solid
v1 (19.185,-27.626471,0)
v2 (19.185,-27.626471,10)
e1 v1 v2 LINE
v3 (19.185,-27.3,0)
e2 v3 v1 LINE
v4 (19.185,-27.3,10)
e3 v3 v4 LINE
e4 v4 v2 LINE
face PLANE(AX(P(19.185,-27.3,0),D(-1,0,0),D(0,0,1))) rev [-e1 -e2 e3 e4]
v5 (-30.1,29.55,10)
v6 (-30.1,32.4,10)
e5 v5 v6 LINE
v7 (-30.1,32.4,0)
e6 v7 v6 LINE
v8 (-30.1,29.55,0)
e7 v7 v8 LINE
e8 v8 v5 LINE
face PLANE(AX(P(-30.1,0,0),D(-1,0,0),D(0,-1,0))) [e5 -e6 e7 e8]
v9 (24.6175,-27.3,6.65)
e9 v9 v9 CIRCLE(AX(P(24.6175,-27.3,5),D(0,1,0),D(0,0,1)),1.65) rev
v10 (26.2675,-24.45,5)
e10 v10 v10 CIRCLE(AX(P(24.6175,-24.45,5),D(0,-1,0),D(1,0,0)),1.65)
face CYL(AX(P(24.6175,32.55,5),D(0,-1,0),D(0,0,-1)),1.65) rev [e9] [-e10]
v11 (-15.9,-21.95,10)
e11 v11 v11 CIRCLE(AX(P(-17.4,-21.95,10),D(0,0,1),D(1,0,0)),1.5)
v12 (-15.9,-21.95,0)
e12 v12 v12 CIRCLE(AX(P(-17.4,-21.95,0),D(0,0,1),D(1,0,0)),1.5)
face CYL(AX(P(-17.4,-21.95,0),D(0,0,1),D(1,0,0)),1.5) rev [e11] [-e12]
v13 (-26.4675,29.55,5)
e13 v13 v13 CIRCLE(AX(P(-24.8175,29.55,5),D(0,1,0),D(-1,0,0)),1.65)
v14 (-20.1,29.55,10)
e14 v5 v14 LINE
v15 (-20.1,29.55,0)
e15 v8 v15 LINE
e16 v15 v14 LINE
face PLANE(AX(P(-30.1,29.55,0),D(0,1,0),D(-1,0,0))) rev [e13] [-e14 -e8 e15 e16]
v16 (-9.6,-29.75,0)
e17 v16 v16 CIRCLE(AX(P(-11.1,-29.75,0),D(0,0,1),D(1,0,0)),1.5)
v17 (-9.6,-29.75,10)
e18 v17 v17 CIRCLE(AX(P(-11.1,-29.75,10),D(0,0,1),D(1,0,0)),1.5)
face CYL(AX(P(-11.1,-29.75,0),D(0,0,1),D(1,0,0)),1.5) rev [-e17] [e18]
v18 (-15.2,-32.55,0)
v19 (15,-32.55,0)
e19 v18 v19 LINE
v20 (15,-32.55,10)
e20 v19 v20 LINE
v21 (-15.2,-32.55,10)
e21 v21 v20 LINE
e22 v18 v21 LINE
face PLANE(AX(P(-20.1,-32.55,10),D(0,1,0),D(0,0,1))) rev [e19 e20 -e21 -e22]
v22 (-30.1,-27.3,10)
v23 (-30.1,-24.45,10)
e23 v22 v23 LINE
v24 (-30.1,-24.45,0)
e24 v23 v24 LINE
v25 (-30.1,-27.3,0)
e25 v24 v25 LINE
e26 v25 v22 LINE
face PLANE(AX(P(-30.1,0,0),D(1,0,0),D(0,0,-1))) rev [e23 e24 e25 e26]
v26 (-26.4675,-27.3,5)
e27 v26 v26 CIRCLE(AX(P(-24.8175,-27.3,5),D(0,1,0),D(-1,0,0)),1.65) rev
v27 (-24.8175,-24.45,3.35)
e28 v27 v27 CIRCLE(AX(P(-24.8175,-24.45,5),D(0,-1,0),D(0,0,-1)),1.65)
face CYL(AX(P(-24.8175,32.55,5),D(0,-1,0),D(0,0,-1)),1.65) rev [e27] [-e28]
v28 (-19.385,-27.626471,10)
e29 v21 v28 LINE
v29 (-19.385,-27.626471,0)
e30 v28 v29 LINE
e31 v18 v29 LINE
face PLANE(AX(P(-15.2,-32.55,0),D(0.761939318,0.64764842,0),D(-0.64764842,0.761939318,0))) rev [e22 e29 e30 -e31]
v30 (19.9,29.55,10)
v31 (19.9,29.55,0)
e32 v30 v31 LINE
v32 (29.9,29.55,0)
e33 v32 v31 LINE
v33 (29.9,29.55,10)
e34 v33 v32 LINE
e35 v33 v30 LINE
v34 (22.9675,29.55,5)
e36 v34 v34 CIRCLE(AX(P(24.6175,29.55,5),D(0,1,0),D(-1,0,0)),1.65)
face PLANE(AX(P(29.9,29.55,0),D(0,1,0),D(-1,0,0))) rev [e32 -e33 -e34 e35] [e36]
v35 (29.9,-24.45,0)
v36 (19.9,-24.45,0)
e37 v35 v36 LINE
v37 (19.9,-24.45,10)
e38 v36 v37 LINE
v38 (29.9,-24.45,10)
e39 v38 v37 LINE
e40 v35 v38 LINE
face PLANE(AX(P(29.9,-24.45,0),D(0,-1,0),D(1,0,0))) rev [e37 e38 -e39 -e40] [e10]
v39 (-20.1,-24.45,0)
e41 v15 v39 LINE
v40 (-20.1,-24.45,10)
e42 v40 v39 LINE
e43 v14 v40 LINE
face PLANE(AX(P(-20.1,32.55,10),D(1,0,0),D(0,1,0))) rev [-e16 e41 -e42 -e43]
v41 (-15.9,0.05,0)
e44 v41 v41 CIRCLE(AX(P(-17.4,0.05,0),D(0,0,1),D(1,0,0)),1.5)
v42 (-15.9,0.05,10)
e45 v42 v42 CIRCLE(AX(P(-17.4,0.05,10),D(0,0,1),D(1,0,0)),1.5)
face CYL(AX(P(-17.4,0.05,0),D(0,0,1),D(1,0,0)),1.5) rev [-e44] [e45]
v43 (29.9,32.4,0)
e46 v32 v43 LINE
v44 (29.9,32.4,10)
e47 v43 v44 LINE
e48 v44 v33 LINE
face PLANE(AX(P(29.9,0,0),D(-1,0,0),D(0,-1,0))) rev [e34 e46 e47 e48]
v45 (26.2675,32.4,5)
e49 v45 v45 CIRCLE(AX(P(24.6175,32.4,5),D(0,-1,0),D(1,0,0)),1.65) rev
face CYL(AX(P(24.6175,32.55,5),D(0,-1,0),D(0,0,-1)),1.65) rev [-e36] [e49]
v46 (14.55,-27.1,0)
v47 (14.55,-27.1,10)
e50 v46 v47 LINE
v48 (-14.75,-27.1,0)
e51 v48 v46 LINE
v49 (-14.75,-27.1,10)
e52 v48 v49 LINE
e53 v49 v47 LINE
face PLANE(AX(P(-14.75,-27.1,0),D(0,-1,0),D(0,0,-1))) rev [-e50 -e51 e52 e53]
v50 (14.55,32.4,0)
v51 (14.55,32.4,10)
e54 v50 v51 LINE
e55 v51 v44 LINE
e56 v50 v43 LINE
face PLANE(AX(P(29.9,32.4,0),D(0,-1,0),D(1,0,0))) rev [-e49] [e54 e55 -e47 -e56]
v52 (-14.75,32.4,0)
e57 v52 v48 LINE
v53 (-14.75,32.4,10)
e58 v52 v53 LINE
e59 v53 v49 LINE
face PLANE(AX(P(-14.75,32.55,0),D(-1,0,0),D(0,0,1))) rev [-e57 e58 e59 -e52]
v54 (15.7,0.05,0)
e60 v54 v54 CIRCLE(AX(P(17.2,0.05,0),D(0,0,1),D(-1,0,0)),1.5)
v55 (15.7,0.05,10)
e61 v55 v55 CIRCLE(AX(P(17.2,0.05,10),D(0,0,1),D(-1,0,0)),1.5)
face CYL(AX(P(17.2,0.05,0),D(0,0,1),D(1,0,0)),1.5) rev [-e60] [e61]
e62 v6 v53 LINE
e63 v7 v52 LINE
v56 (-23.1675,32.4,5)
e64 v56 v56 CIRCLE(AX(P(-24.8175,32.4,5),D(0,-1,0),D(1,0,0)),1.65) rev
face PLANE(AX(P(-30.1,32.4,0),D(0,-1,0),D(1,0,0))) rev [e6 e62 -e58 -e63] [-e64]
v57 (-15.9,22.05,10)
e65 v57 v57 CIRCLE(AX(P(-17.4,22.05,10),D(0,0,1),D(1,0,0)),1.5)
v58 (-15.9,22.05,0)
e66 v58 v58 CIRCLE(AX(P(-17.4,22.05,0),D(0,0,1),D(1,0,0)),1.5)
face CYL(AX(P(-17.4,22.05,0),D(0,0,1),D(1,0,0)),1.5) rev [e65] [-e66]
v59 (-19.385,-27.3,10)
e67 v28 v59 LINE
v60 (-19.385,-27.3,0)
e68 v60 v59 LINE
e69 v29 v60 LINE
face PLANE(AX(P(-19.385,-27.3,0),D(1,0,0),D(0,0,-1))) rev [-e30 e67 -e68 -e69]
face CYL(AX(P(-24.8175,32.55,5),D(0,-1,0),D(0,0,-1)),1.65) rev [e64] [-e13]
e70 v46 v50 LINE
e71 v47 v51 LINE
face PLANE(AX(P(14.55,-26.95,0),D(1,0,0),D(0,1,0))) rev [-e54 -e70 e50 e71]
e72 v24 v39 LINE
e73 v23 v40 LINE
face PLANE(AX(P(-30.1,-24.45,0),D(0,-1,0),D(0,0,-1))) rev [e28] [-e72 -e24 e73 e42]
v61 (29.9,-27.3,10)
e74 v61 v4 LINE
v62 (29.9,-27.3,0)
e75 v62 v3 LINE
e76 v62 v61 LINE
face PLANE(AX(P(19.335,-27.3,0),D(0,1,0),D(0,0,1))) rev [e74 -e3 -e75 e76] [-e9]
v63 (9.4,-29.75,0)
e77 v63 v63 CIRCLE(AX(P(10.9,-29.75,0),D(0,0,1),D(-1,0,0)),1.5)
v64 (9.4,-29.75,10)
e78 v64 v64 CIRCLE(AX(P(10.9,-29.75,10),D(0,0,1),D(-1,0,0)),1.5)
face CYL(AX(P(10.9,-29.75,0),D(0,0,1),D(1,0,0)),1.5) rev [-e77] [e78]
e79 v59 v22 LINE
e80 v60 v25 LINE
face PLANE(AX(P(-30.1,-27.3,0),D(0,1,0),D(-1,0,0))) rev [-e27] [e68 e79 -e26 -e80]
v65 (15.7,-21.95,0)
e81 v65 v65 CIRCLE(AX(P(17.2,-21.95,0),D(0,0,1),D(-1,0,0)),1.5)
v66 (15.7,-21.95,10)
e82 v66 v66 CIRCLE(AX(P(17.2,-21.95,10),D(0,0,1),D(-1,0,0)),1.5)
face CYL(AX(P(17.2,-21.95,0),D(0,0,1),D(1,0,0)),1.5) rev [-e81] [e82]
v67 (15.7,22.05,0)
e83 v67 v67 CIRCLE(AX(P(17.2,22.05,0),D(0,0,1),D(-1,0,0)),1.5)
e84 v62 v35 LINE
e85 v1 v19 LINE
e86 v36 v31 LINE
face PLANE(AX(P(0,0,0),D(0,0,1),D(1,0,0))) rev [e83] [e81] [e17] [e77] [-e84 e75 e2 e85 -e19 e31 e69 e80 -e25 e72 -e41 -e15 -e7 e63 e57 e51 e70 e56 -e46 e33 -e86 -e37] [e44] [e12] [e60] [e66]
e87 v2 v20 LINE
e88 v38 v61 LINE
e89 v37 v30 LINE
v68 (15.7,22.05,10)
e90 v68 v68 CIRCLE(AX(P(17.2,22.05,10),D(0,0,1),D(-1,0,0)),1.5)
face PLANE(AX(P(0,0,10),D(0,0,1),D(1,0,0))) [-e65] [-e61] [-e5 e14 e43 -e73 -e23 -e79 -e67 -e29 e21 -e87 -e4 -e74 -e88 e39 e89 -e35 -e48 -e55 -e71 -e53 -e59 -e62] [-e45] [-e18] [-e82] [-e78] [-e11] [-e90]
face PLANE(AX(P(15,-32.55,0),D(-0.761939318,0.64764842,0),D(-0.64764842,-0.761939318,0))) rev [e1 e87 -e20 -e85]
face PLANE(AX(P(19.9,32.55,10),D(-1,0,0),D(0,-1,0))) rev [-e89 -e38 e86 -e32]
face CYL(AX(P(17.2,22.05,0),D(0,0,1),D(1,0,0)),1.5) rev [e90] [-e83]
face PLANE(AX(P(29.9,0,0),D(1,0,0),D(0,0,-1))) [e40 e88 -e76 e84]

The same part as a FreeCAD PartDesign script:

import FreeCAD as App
import Part
import Sketcher

V = App.Vector
Q = App.Units.Quantity

doc = App.newDocument("Part")
body = doc.addObject("PartDesign::Body", "Body")

# Sketch on XY plane
sketch1 = body.newObject("Sketcher::SketchObject", "Sketch")
sketch1.AttachmentSupport = (doc.getObject("XY_Plane"), [""])
sketch1.MapMode = "FlatFace"
sketch1.addGeometry(Part.LineSegment(V(-20.1, 32.55, 0), V(-20.1, -32.55, 0)), False)
sketch1.addGeometry(Part.LineSegment(V(-20.1, -32.55, 0), V(19.9, -32.55, 0)), False)
sketch1.addGeometry(Part.LineSegment(V(19.9, -32.55, 0), V(19.9, 32.55, 0)), False)
sketch1.addGeometry(Part.LineSegment(V(19.9, 32.55, 0), V(-20.1, 32.55, 0)), False)
sketch1.addConstraint(Sketcher.Constraint("Coincident", 0, 2, 1, 1))
sketch1.addConstraint(Sketcher.Constraint("Coincident", 1, 2, 2, 1))
sketch1.addConstraint(Sketcher.Constraint("Coincident", 2, 2, 3, 1))
sketch1.addConstraint(Sketcher.Constraint("Coincident", 3, 2, 0, 1))
sketch1.addConstraint(Sketcher.Constraint("Vertical", 0))
sketch1.addConstraint(Sketcher.Constraint("Horizontal", 1))
sketch1.addConstraint(Sketcher.Constraint("Vertical", 2))
sketch1.addConstraint(Sketcher.Constraint("Horizontal", 3))
sketch1.addConstraint(Sketcher.Constraint("DistanceX", 1, 1, 1, 2, Q("40 mm")))
sketch1.addConstraint(Sketcher.Constraint("DistanceY", 0, 2, 0, 1, Q("65.1 mm")))
sketch1.addConstraint(Sketcher.Constraint("DistanceX", 0, 2, -1, 1, Q("20.1 mm")))
sketch1.addConstraint(Sketcher.Constraint("DistanceY", 0, 2, -1, 1, Q("32.55 mm")))
pad1 = body.newObject("PartDesign::Pad", "Pad")
pad1.Profile = sketch1
pad1.Length = 10

# Sketch on XY plane
sketch2 = body.newObject("Sketcher::SketchObject", "Sketch001")
sketch2.AttachmentSupport = (doc.getObject("XY_Plane"), [""])
sketch2.MapMode = "FlatFace"
sketch2.AttachmentOffset = App.Placement(V(0, 0, 10), App.Rotation())
sketch2.addGeometry(Part.LineSegment(V(19.335, -27.45, 0), V(15, -32.55, 0)), False)
sketch2.addGeometry(Part.LineSegment(V(15, -32.55, 0), V(19.9, -32.55, 0)), False)
sketch2.addGeometry(Part.LineSegment(V(19.9, -32.55, 0), V(19.9, -27.45, 0)), False)
sketch2.addGeometry(Part.LineSegment(V(19.9, -27.45, 0), V(19.335, -27.45, 0)), False)
sketch2.addGeometry(Part.LineSegment(V(-20.1, -27.45, 0), V(-20.1, -32.55, 0)), False)
sketch2.addGeometry(Part.LineSegment(V(-20.1, -32.55, 0), V(-15.2, -32.55, 0)), False)
sketch2.addGeometry(Part.LineSegment(V(-15.2, -32.55, 0), V(-19.535, -27.45, 0)), False)
sketch2.addGeometry(Part.LineSegment(V(-19.535, -27.45, 0), V(-20.1, -27.45, 0)), False)
sketch2.addConstraint(Sketcher.Constraint("Coincident", 0, 2, 1, 1))
sketch2.addConstraint(Sketcher.Constraint("Coincident", 1, 2, 2, 1))
sketch2.addConstraint(Sketcher.Constraint("Coincident", 2, 2, 3, 1))
sketch2.addConstraint(Sketcher.Constraint("Coincident", 3, 2, 0, 1))
sketch2.addConstraint(Sketcher.Constraint("Coincident", 4, 2, 5, 1))
sketch2.addConstraint(Sketcher.Constraint("Coincident", 5, 2, 6, 1))
sketch2.addConstraint(Sketcher.Constraint("Coincident", 6, 2, 7, 1))
sketch2.addConstraint(Sketcher.Constraint("Coincident", 7, 2, 4, 1))
sketch2.addConstraint(Sketcher.Constraint("Horizontal", 1))
sketch2.addConstraint(Sketcher.Constraint("Vertical", 2))
sketch2.addConstraint(Sketcher.Constraint("Horizontal", 3))
sketch2.addConstraint(Sketcher.Constraint("Vertical", 4))
sketch2.addConstraint(Sketcher.Constraint("Horizontal", 5))
sketch2.addConstraint(Sketcher.Constraint("Horizontal", 7))
sketch2.addConstraint(Sketcher.Constraint("Horizontal", 1, 2, 4, 2))
sketch2.addConstraint(Sketcher.Constraint("Horizontal", 3, 2, 6, 2))
sketch2.addConstraint(Sketcher.Constraint("Equal", 1, 5))
sketch2.addConstraint(Sketcher.Constraint("Equal", 3, 7))
sketch2.addConstraint(Sketcher.Constraint("DistanceX", 1, 1, 1, 2, Q("4.9 mm")))
sketch2.addConstraint(Sketcher.Constraint("DistanceY", 2, 1, 2, 2, Q("5.1 mm")))
sketch2.addConstraint(Sketcher.Constraint("DistanceX", -1, 1, 0, 2, Q("15 mm")))
sketch2.addConstraint(Sketcher.Constraint("DistanceX", 4, 2, 1, 2, Q("40 mm")))
sketch2.addConstraint(Sketcher.Constraint("DistanceX", 3, 2, 3, 1, Q("0.565 mm")))
sketch2.addConstraint(Sketcher.Constraint("DistanceY", 0, 2, -1, 1, Q("32.55 mm")))
pocket1 = body.newObject("PartDesign::Pocket", "Pocket")
pocket1.Profile = sketch2
pocket1.Length = 10

# Sketch on XY plane
sketch3 = body.newObject("Sketcher::SketchObject", "Sketch002")
sketch3.AttachmentSupport = (doc.getObject("XY_Plane"), [""])
sketch3.MapMode = "FlatFace"
sketch3.AttachmentOffset = App.Placement(V(0, 0, 10), App.Rotation())
sketch3.addGeometry(Part.LineSegment(V(-14.75, 32.55, 0), V(-14.75, -26.95, 0)), False)
sketch3.addGeometry(Part.LineSegment(V(-14.75, -26.95, 0), V(14.55, -26.95, 0)), False)
sketch3.addGeometry(Part.LineSegment(V(14.55, -26.95, 0), V(14.55, 32.55, 0)), False)
sketch3.addGeometry(Part.LineSegment(V(14.55, 32.55, 0), V(-14.75, 32.55, 0)), False)
sketch3.addConstraint(Sketcher.Constraint("Coincident", 0, 2, 1, 1))
sketch3.addConstraint(Sketcher.Constraint("Coincident", 1, 2, 2, 1))
sketch3.addConstraint(Sketcher.Constraint("Coincident", 2, 2, 3, 1))
sketch3.addConstraint(Sketcher.Constraint("Coincident", 3, 2, 0, 1))
sketch3.addConstraint(Sketcher.Constraint("Vertical", 0))
sketch3.addConstraint(Sketcher.Constraint("Horizontal", 1))
sketch3.addConstraint(Sketcher.Constraint("Vertical", 2))
sketch3.addConstraint(Sketcher.Constraint("Horizontal", 3))
sketch3.addConstraint(Sketcher.Constraint("DistanceX", 1, 1, 1, 2, Q("29.3 mm")))
sketch3.addConstraint(Sketcher.Constraint("DistanceY", 0, 2, 0, 1, Q("59.5 mm")))
sketch3.addConstraint(Sketcher.Constraint("DistanceX", 0, 2, -1, 1, Q("14.75 mm")))
sketch3.addConstraint(Sketcher.Constraint("DistanceY", 0, 2, -1, 1, Q("26.95 mm")))
pocket2 = body.newObject("PartDesign::Pocket", "Pocket001")
pocket2.Profile = sketch3
pocket2.Length = 10

# Sketch on XY plane
sketch4 = body.newObject("Sketcher::SketchObject", "Sketch003")
sketch4.AttachmentSupport = (doc.getObject("XY_Plane"), [""])
sketch4.MapMode = "FlatFace"
sketch4.AttachmentOffset = App.Placement(V(0, 0, 10), App.Rotation())
sketch4.addGeometry(Part.Circle(V(-17.4, 22.05, 0), V(0, 0, 1), 1.5), False)
sketch4.addGeometry(Part.Circle(V(-17.4, 0.05, 0), V(0, 0, 1), 1.5), False)
sketch4.addGeometry(Part.Circle(V(-17.4, -21.95, 0), V(0, 0, 1), 1.5), False)
sketch4.addGeometry(Part.Circle(V(-11.1, -29.75, 0), V(0, 0, 1), 1.5), False)
sketch4.addGeometry(Part.Circle(V(10.9, -29.75, 0), V(0, 0, 1), 1.5), False)
sketch4.addGeometry(Part.Circle(V(17.2, -21.95, 0), V(0, 0, 1), 1.5), False)
sketch4.addGeometry(Part.Circle(V(17.2, 0.05, 0), V(0, 0, 1), 1.5), False)
sketch4.addGeometry(Part.Circle(V(17.2, 22.05, 0), V(0, 0, 1), 1.5), False)
sketch4.addConstraint(Sketcher.Constraint("Equal", 0, 1))
sketch4.addConstraint(Sketcher.Constraint("Equal", 1, 2))
sketch4.addConstraint(Sketcher.Constraint("Equal", 2, 3))
sketch4.addConstraint(Sketcher.Constraint("Equal", 3, 4))
sketch4.addConstraint(Sketcher.Constraint("Equal", 4, 5))
sketch4.addConstraint(Sketcher.Constraint("Equal", 5, 6))
sketch4.addConstraint(Sketcher.Constraint("Equal", 6, 7))
sketch4.addConstraint(Sketcher.Constraint("Horizontal", 3, 3, 4, 3))
sketch4.addConstraint(Sketcher.Constraint("Horizontal", 2, 3, 5, 3))
sketch4.addConstraint(Sketcher.Constraint("Horizontal", 1, 3, 6, 3))
sketch4.addConstraint(Sketcher.Constraint("Horizontal", 0, 3, 7, 3))
sketch4.addConstraint(Sketcher.Constraint("Vertical", 0, 3, 1, 3))
sketch4.addConstraint(Sketcher.Constraint("Vertical", 1, 3, 2, 3))
sketch4.addConstraint(Sketcher.Constraint("Vertical", 5, 3, 6, 3))
sketch4.addConstraint(Sketcher.Constraint("Vertical", 6, 3, 7, 3))
sketch4.addConstraint(Sketcher.Constraint("Diameter", 0, Q("3 mm")))
sketch4.addConstraint(Sketcher.Constraint("DistanceY", 1, 3, 0, 3, Q("22 mm")))
sketch4.addConstraint(Sketcher.Constraint("DistanceY", 2, 3, 1, 3, Q("22 mm")))
sketch4.addConstraint(Sketcher.Constraint("DistanceX", 3, 3, 4, 3, Q("22 mm")))
sketch4.addConstraint(Sketcher.Constraint("DistanceX", 0, 3, -1, 1, Q("17.4 mm")))
sketch4.addConstraint(Sketcher.Constraint("DistanceX", 3, 3, -1, 1, Q("11.1 mm")))
sketch4.addConstraint(Sketcher.Constraint("DistanceX", -1, 1, 5, 3, Q("17.2 mm")))
sketch4.addConstraint(Sketcher.Constraint("DistanceY", 3, 3, 2, 3, Q("7.8 mm")))
sketch4.addConstraint(Sketcher.Constraint("DistanceY", -1, 1, 0, 3, Q("22.05 mm")))
pocket3 = body.newObject("PartDesign::Pocket", "Pocket002")
pocket3.Profile = sketch4
pocket3.Length = 10

# Sketch on YZ plane
sketch5 = body.newObject("Sketcher::SketchObject", "Sketch004")
sketch5.AttachmentSupport = (doc.getObject("YZ_Plane"), [""])
sketch5.MapMode = "FlatFace"
sketch5.AttachmentOffset = App.Placement(V(0, 0, 19.9), App.Rotation())
sketch5.addGeometry(Part.LineSegment(V(32.55, 10, 0), V(29.55, 10, 0)), False)
sketch5.addGeometry(Part.LineSegment(V(29.55, 10, 0), V(29.55, 0, 0)), False)
sketch5.addGeometry(Part.LineSegment(V(29.55, 0, 0), V(32.55, 0, 0)), False)
sketch5.addGeometry(Part.LineSegment(V(32.55, 0, 0), V(32.55, 10, 0)), False)
sketch5.addGeometry(Part.LineSegment(V(-24.45, 10, 0), V(-27.45, 10, 0)), False)
sketch5.addGeometry(Part.LineSegment(V(-27.45, 10, 0), V(-27.45, 0, 0)), False)
sketch5.addGeometry(Part.LineSegment(V(-27.45, 0, 0), V(-24.45, 0, 0)), False)
sketch5.addGeometry(Part.LineSegment(V(-24.45, 0, 0), V(-24.45, 10, 0)), False)
sketch5.addConstraint(Sketcher.Constraint("Coincident", 0, 2, 1, 1))
sketch5.addConstraint(Sketcher.Constraint("Coincident", 1, 2, 2, 1))
sketch5.addConstraint(Sketcher.Constraint("Coincident", 2, 2, 3, 1))
sketch5.addConstraint(Sketcher.Constraint("Coincident", 3, 2, 0, 1))
sketch5.addConstraint(Sketcher.Constraint("Coincident", 4, 2, 5, 1))
sketch5.addConstraint(Sketcher.Constraint("Coincident", 5, 2, 6, 1))
sketch5.addConstraint(Sketcher.Constraint("Coincident", 6, 2, 7, 1))
sketch5.addConstraint(Sketcher.Constraint("Coincident", 7, 2, 4, 1))
sketch5.addConstraint(Sketcher.Constraint("Horizontal", 0))
sketch5.addConstraint(Sketcher.Constraint("Vertical", 1))
sketch5.addConstraint(Sketcher.Constraint("Horizontal", 2))
sketch5.addConstraint(Sketcher.Constraint("Vertical", 3))
sketch5.addConstraint(Sketcher.Constraint("Horizontal", 4))
sketch5.addConstraint(Sketcher.Constraint("Vertical", 5))
sketch5.addConstraint(Sketcher.Constraint("Horizontal", 6))
sketch5.addConstraint(Sketcher.Constraint("Vertical", 7))
sketch5.addConstraint(Sketcher.Constraint("PointOnObject", 1, 2, -1))
sketch5.addConstraint(Sketcher.Constraint("PointOnObject", 5, 2, -1))
sketch5.addConstraint(Sketcher.Constraint("Horizontal", 3, 2, 4, 2))
sketch5.addConstraint(Sketcher.Constraint("Equal", 2, 4))
sketch5.addConstraint(Sketcher.Constraint("DistanceX", 0, 2, 0, 1, Q("3 mm")))
sketch5.addConstraint(Sketcher.Constraint("DistanceY", 1, 2, 1, 1, Q("10 mm")))
sketch5.addConstraint(Sketcher.Constraint("DistanceX", 4, 2, 0, 2, Q("57 mm")))
sketch5.addConstraint(Sketcher.Constraint("DistanceX", -1, 1, 0, 2, Q("29.55 mm")))
pad2 = body.newObject("PartDesign::Pad", "Pad001")
pad2.Profile = sketch5
pad2.Length = 10

# Sketch on YZ plane
sketch6 = body.newObject("Sketcher::SketchObject", "Sketch005")
sketch6.AttachmentSupport = (doc.getObject("YZ_Plane"), [""])
sketch6.MapMode = "FlatFace"
sketch6.AttachmentOffset = App.Placement(V(0, 0, -20.1), App.Rotation())
sketch6.addGeometry(Part.LineSegment(V(32.55, 0, 0), V(29.55, 0, 0)), False)
sketch6.addGeometry(Part.LineSegment(V(29.55, 0, 0), V(29.55, 10, 0)), False)
sketch6.addGeometry(Part.LineSegment(V(29.55, 10, 0), V(32.55, 10, 0)), False)
sketch6.addGeometry(Part.LineSegment(V(32.55, 10, 0), V(32.55, 0, 0)), False)
sketch6.addGeometry(Part.LineSegment(V(-24.45, 0, 0), V(-27.45, 0, 0)), False)
sketch6.addGeometry(Part.LineSegment(V(-27.45, 0, 0), V(-27.45, 10, 0)), False)
sketch6.addGeometry(Part.LineSegment(V(-27.45, 10, 0), V(-24.45, 10, 0)), False)
sketch6.addGeometry(Part.LineSegment(V(-24.45, 10, 0), V(-24.45, 0, 0)), False)
sketch6.addConstraint(Sketcher.Constraint("Coincident", 0, 2, 1, 1))
sketch6.addConstraint(Sketcher.Constraint("Coincident", 1, 2, 2, 1))
sketch6.addConstraint(Sketcher.Constraint("Coincident", 2, 2, 3, 1))
sketch6.addConstraint(Sketcher.Constraint("Coincident", 3, 2, 0, 1))
sketch6.addConstraint(Sketcher.Constraint("Coincident", 4, 2, 5, 1))
sketch6.addConstraint(Sketcher.Constraint("Coincident", 5, 2, 6, 1))
sketch6.addConstraint(Sketcher.Constraint("Coincident", 6, 2, 7, 1))
sketch6.addConstraint(Sketcher.Constraint("Coincident", 7, 2, 4, 1))
sketch6.addConstraint(Sketcher.Constraint("Horizontal", 0))
sketch6.addConstraint(Sketcher.Constraint("Vertical", 1))
sketch6.addConstraint(Sketcher.Constraint("Horizontal", 2))
sketch6.addConstraint(Sketcher.Constraint("Vertical", 3))
sketch6.addConstraint(Sketcher.Constraint("Horizontal", 4))
sketch6.addConstraint(Sketcher.Constraint("Vertical", 5))
sketch6.addConstraint(Sketcher.Constraint("Horizontal", 6))
sketch6.addConstraint(Sketcher.Constraint("Vertical", 7))
sketch6.addConstraint(Sketcher.Constraint("PointOnObject", 0, 2, -1))
sketch6.addConstraint(Sketcher.Constraint("PointOnObject", 4, 2, -1))
sketch6.addConstraint(Sketcher.Constraint("Horizontal", 2, 2, 5, 2))
sketch6.addConstraint(Sketcher.Constraint("Equal", 2, 4))
sketch6.addConstraint(Sketcher.Constraint("DistanceX", 0, 2, 0, 1, Q("3 mm")))
sketch6.addConstraint(Sketcher.Constraint("DistanceY", 1, 1, 1, 2, Q("10 mm")))
sketch6.addConstraint(Sketcher.Constraint("DistanceX", 4, 2, 0, 2, Q("57 mm")))
sketch6.addConstraint(Sketcher.Constraint("DistanceX", -1, 1, 0, 2, Q("29.55 mm")))
pad3 = body.newObject("PartDesign::Pad", "Pad002")
pad3.Profile = sketch6
pad3.Length = 10
pad3.Reversed = True

# Sketch on XZ plane
sketch7 = body.newObject("Sketcher::SketchObject", "Sketch006")
sketch7.AttachmentSupport = (doc.getObject("XZ_Plane"), [""])
sketch7.MapMode = "FlatFace"
sketch7.AttachmentOffset = App.Placement(V(0, 0, 27.45), App.Rotation())
sketch7.addGeometry(Part.Circle(V(-24.8175, 5, 0), V(0, 0, 1), 1.65), False)
sketch7.addConstraint(Sketcher.Constraint("Diameter", 0, Q("3.3 mm")))
sketch7.addConstraint(Sketcher.Constraint("DistanceY", -1, 1, 0, 3, Q("5 mm")))
sketch7.addConstraint(Sketcher.Constraint("DistanceX", 0, 3, -1, 1, Q("24.8175 mm")))
pocket4 = body.newObject("PartDesign::Pocket", "Pocket003")
pocket4.Profile = sketch7
pocket4.Type = "ThroughAll"

# Sketch on XZ plane
sketch8 = body.newObject("Sketcher::SketchObject", "Sketch007")
sketch8.AttachmentSupport = (doc.getObject("XZ_Plane"), [""])
sketch8.MapMode = "FlatFace"
sketch8.AttachmentOffset = App.Placement(V(0, 0, 27.45), App.Rotation())
sketch8.addGeometry(Part.Circle(V(24.6175, 5, 0), V(0, 0, 1), 1.65), False)
sketch8.addConstraint(Sketcher.Constraint("Diameter", 0, Q("3.3 mm")))
sketch8.addConstraint(Sketcher.Constraint("DistanceY", -1, 1, 0, 3, Q("5 mm")))
sketch8.addConstraint(Sketcher.Constraint("DistanceX", -1, 1, 0, 3, Q("24.6175 mm")))
pocket5 = body.newObject("PartDesign::Pocket", "Pocket004")
pocket5.Profile = sketch8
pocket5.Type = "ThroughAll"

# Sketch on XY plane
sketch9 = body.newObject("Sketcher::SketchObject", "Sketch008")
sketch9.AttachmentSupport = (doc.getObject("XY_Plane"), [""])
sketch9.MapMode = "FlatFace"
sketch9.AttachmentOffset = App.Placement(V(0, 0, 10), App.Rotation())
sketch9.addGeometry(Part.LineSegment(V(29.9, -27.45, 0), V(29.9, -27.3, 0)), False)
sketch9.addGeometry(Part.LineSegment(V(29.9, -27.3, 0), V(19.185, -27.3, 0)), False)
sketch9.addGeometry(Part.LineSegment(V(19.185, -27.3, 0), V(19.185, -27.905597, 0)), False)
sketch9.addGeometry(Part.LineSegment(V(19.185, -27.905597, 0), V(27.185, -27.905597, 0)), False)
sketch9.addGeometry(Part.LineSegment(V(27.185, -27.905597, 0), V(27.185, -27.45, 0)), False)
sketch9.addGeometry(Part.LineSegment(V(27.185, -27.45, 0), V(29.9, -27.45, 0)), False)
sketch9.addGeometry(Part.LineSegment(V(14.55, 32.55, 0), V(14.55, 32.4, 0)), False)
sketch9.addGeometry(Part.LineSegment(V(14.55, 32.4, 0), V(29.9, 32.4, 0)), False)
sketch9.addGeometry(Part.LineSegment(V(29.9, 32.4, 0), V(29.9, 32.55, 0)), False)
sketch9.addGeometry(Part.LineSegment(V(29.9, 32.55, 0), V(14.55, 32.55, 0)), False)
sketch9.addGeometry(Part.LineSegment(V(-27.385, -27.45, 0), V(-27.385, -27.905597, 0)), False)
sketch9.addGeometry(Part.LineSegment(V(-27.385, -27.905597, 0), V(-19.385, -27.905597, 0)), False)
sketch9.addGeometry(Part.LineSegment(V(-19.385, -27.905597, 0), V(-19.385, -27.3, 0)), False)
sketch9.addGeometry(Part.LineSegment(V(-19.385, -27.3, 0), V(-30.1, -27.3, 0)), False)
sketch9.addGeometry(Part.LineSegment(V(-30.1, -27.3, 0), V(-30.1, -27.45, 0)), False)
sketch9.addGeometry(Part.LineSegment(V(-30.1, -27.45, 0), V(-27.385, -27.45, 0)), False)
sketch9.addGeometry(Part.LineSegment(V(-30.1, 32.55, 0), V(-30.1, 32.4, 0)), False)
sketch9.addGeometry(Part.LineSegment(V(-30.1, 32.4, 0), V(-14.75, 32.4, 0)), False)
sketch9.addGeometry(Part.LineSegment(V(-14.75, 32.4, 0), V(-14.75, 32.55, 0)), False)
sketch9.addGeometry(Part.LineSegment(V(-14.75, 32.55, 0), V(-30.1, 32.55, 0)), False)
sketch9.addGeometry(Part.LineSegment(V(-14.75, -26.95, 0), V(-14.75, -27.1, 0)), False)
sketch9.addGeometry(Part.LineSegment(V(-14.75, -27.1, 0), V(14.55, -27.1, 0)), False)
sketch9.addGeometry(Part.LineSegment(V(14.55, -27.1, 0), V(14.55, -26.95, 0)), False)
sketch9.addGeometry(Part.LineSegment(V(14.55, -26.95, 0), V(-14.75, -26.95, 0)), False)
sketch9.addConstraint(Sketcher.Constraint("Coincident", 0, 2, 1, 1))
sketch9.addConstraint(Sketcher.Constraint("Coincident", 1, 2, 2, 1))
sketch9.addConstraint(Sketcher.Constraint("Coincident", 2, 2, 3, 1))
sketch9.addConstraint(Sketcher.Constraint("Coincident", 3, 2, 4, 1))
sketch9.addConstraint(Sketcher.Constraint("Coincident", 4, 2, 5, 1))
sketch9.addConstraint(Sketcher.Constraint("Coincident", 5, 2, 0, 1))
sketch9.addConstraint(Sketcher.Constraint("Coincident", 6, 2, 7, 1))
sketch9.addConstraint(Sketcher.Constraint("Coincident", 7, 2, 8, 1))
sketch9.addConstraint(Sketcher.Constraint("Coincident", 8, 2, 9, 1))
sketch9.addConstraint(Sketcher.Constraint("Coincident", 9, 2, 6, 1))
sketch9.addConstraint(Sketcher.Constraint("Coincident", 10, 2, 11, 1))
sketch9.addConstraint(Sketcher.Constraint("Coincident", 11, 2, 12, 1))
sketch9.addConstraint(Sketcher.Constraint("Coincident", 12, 2, 13, 1))
sketch9.addConstraint(Sketcher.Constraint("Coincident", 13, 2, 14, 1))
sketch9.addConstraint(Sketcher.Constraint("Coincident", 14, 2, 15, 1))
sketch9.addConstraint(Sketcher.Constraint("Coincident", 15, 2, 10, 1))
sketch9.addConstraint(Sketcher.Constraint("Coincident", 16, 2, 17, 1))
sketch9.addConstraint(Sketcher.Constraint("Coincident", 17, 2, 18, 1))
sketch9.addConstraint(Sketcher.Constraint("Coincident", 18, 2, 19, 1))
sketch9.addConstraint(Sketcher.Constraint("Coincident", 19, 2, 16, 1))
sketch9.addConstraint(Sketcher.Constraint("Coincident", 20, 2, 21, 1))
sketch9.addConstraint(Sketcher.Constraint("Coincident", 21, 2, 22, 1))
sketch9.addConstraint(Sketcher.Constraint("Coincident", 22, 2, 23, 1))
sketch9.addConstraint(Sketcher.Constraint("Coincident", 23, 2, 20, 1))
sketch9.addConstraint(Sketcher.Constraint("Vertical", 0))
sketch9.addConstraint(Sketcher.Constraint("Horizontal", 1))
sketch9.addConstraint(Sketcher.Constraint("Vertical", 2))
sketch9.addConstraint(Sketcher.Constraint("Horizontal", 3))
sketch9.addConstraint(Sketcher.Constraint("Vertical", 4))
sketch9.addConstraint(Sketcher.Constraint("Horizontal", 5))
sketch9.addConstraint(Sketcher.Constraint("Vertical", 6))
sketch9.addConstraint(Sketcher.Constraint("Horizontal", 7))
sketch9.addConstraint(Sketcher.Constraint("Vertical", 8))
sketch9.addConstraint(Sketcher.Constraint("Horizontal", 9))
sketch9.addConstraint(Sketcher.Constraint("Vertical", 10))
sketch9.addConstraint(Sketcher.Constraint("Horizontal", 11))
sketch9.addConstraint(Sketcher.Constraint("Vertical", 12))
sketch9.addConstraint(Sketcher.Constraint("Horizontal", 13))
sketch9.addConstraint(Sketcher.Constraint("Vertical", 14))
sketch9.addConstraint(Sketcher.Constraint("Horizontal", 15))
sketch9.addConstraint(Sketcher.Constraint("Vertical", 16))
sketch9.addConstraint(Sketcher.Constraint("Horizontal", 17))
sketch9.addConstraint(Sketcher.Constraint("Vertical", 18))
sketch9.addConstraint(Sketcher.Constraint("Horizontal", 19))
sketch9.addConstraint(Sketcher.Constraint("Vertical", 20))
sketch9.addConstraint(Sketcher.Constraint("Horizontal", 21))
sketch9.addConstraint(Sketcher.Constraint("Vertical", 22))
sketch9.addConstraint(Sketcher.Constraint("Horizontal", 23))
sketch9.addConstraint(Sketcher.Constraint("Horizontal", 3, 2, 10, 2))
sketch9.addConstraint(Sketcher.Constraint("Horizontal", 1, 2, 12, 2))
sketch9.addConstraint(Sketcher.Constraint("Horizontal", 5, 2, 14, 2))
sketch9.addConstraint(Sketcher.Constraint("Horizontal", 7, 2, 16, 2))
sketch9.addConstraint(Sketcher.Constraint("Horizontal", 9, 2, 18, 2))
sketch9.addConstraint(Sketcher.Constraint("Vertical", 5, 2, 7, 2))
sketch9.addConstraint(Sketcher.Constraint("Vertical", 14, 2, 16, 2))
sketch9.addConstraint(Sketcher.Constraint("Vertical", 18, 2, 20, 2))
sketch9.addConstraint(Sketcher.Constraint("Vertical", 9, 2, 21, 2))
sketch9.addConstraint(Sketcher.Constraint("Equal", 3, 11))
sketch9.addConstraint(Sketcher.Constraint("Equal", 1, 13))
sketch9.addConstraint(Sketcher.Constraint("Equal", 9, 17))
sketch9.addConstraint(Sketcher.Constraint("Equal", 0, 6))
sketch9.addConstraint(Sketcher.Constraint("Equal", 18, 20))
sketch9.addConstraint(Sketcher.Constraint("DistanceX", 3, 1, 3, 2, Q("8 mm")))
sketch9.addConstraint(Sketcher.Constraint("DistanceX", 21, 1, 21, 2, Q("29.3 mm")))
sketch9.addConstraint(Sketcher.Constraint("DistanceY", 5, 2, 8, 2, Q("60 mm")))
sketch9.addConstraint(Sketcher.Constraint("DistanceX", 7, 1, 7, 2, Q("15.35 mm")))
sketch9.addConstraint(Sketcher.Constraint("DistanceY", 0, 1, 0, 2, Q("0.15 mm")))
sketch9.addConstraint(Sketcher.Constraint("DistanceX", -1, 1, 0, 2, Q("29.9 mm")))
sketch9.addConstraint(Sketcher.Constraint("DistanceY", 0, 2, -1, 1, Q("27.3 mm")))
sketch9.addConstraint(Sketcher.Constraint("DistanceY", 20, 2, -1, 1, Q("27.1 mm")))
sketch9.addConstraint(Sketcher.Constraint("DistanceX", 1, 2, 1, 1, Q("10.715 mm")))
sketch9.addConstraint(Sketcher.Constraint("DistanceY", 2, 2, 2, 1, Q("0.605597 mm")))
pocket6 = body.newObject("PartDesign::Pocket", "Pocket005")
pocket6.Profile = sketch9
pocket6.Type = "ThroughAll"

doc.recompute()
